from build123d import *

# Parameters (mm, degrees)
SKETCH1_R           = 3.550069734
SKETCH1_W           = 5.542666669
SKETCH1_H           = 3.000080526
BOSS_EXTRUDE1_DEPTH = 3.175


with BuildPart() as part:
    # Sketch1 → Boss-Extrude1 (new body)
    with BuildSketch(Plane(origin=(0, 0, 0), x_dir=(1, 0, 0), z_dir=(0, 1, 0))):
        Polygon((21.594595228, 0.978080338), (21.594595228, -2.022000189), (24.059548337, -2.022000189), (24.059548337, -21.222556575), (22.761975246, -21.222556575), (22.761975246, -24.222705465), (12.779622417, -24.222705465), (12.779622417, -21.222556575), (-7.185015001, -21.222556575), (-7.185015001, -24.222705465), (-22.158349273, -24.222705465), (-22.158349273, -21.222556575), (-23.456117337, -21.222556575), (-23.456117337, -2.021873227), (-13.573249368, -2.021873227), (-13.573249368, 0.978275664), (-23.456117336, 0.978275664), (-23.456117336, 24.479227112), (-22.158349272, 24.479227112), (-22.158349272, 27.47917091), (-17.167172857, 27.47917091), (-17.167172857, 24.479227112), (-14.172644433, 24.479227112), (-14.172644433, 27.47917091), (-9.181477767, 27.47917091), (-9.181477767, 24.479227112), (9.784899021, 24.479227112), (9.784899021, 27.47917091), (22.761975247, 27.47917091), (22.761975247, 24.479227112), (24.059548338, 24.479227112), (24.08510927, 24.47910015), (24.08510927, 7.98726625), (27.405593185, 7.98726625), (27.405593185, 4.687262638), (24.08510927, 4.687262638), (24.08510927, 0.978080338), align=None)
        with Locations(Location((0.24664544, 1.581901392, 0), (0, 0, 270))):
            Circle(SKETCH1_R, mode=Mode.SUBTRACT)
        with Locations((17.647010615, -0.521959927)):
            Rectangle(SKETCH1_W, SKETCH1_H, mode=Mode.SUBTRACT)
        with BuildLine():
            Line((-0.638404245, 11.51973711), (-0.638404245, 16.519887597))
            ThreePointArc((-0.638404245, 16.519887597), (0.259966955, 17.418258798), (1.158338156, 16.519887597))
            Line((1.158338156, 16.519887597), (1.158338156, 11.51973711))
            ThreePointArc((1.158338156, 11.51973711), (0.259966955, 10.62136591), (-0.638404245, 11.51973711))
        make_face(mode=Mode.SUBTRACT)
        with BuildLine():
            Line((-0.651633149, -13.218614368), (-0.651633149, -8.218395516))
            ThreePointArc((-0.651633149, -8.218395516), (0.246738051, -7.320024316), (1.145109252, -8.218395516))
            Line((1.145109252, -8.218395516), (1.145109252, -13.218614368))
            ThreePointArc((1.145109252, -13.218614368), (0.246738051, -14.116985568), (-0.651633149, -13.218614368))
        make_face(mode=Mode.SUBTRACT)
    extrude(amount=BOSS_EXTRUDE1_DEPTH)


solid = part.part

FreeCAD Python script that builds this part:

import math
import FreeCAD as App
import Part
import Sketcher
Q = App.Units.Quantity

doc = App.newDocument("Part")
params = doc.addObject("Spreadsheet::Sheet", "Params")
for row, (alias, value) in enumerate([
    ("pad1_length", "0.125 in"),
], start=1):
    params.set(f"A{row}", alias)
    params.set(f"B{row}", "=" + value)
    params.setAlias(f"B{row}", alias)

body = doc.addObject("PartDesign::Body", "Body")

# Sketch on XZ plane
sketch1 = body.newObject("Sketcher::SketchObject", "Sketch")
sketch1.AttachmentSupport = (doc.getObject("XZ_Plane"), [""])
sketch1.MapMode = "FlatFace"
sketch1.addGeometry(Part.LineSegment(App.Vector(21.594595, 2.022, 0), App.Vector(21.594595, -0.97808, 0)), False)
sketch1.addGeometry(Part.LineSegment(App.Vector(21.594595, -0.97808, 0), App.Vector(24.085109, -0.97808, 0)), False)
sketch1.addGeometry(Part.LineSegment(App.Vector(24.085109, -0.97808, 0), App.Vector(24.085109, -4.687263, 0)), False)
sketch1.addGeometry(Part.LineSegment(App.Vector(24.085109, -4.687263, 0), App.Vector(27.405593, -4.687263, 0)), False)
sketch1.addGeometry(Part.LineSegment(App.Vector(27.405593, -4.687263, 0), App.Vector(27.405593, -7.987266, 0)), False)
sketch1.addGeometry(Part.LineSegment(App.Vector(27.405593, -7.987266, 0), App.Vector(24.085109, -7.987266, 0)), False)
sketch1.addGeometry(Part.LineSegment(App.Vector(24.085109, -7.987266, 0), App.Vector(24.085109, -24.4791, 0)), False)
sketch1.addGeometry(Part.LineSegment(App.Vector(24.085109, -24.4791, 0), App.Vector(24.059548, -24.479227, 0)), False)
sketch1.addGeometry(Part.LineSegment(App.Vector(24.059548, -24.479227, 0), App.Vector(22.761975, -24.479227, 0)), False)
sketch1.addGeometry(Part.LineSegment(App.Vector(22.761975, -24.479227, 0), App.Vector(22.761975, -27.479171, 0)), False)
sketch1.addGeometry(Part.LineSegment(App.Vector(22.761975, -27.479171, 0), App.Vector(9.784899, -27.479171, 0)), False)
sketch1.addGeometry(Part.LineSegment(App.Vector(9.784899, -27.479171, 0), App.Vector(9.784899, -24.479227, 0)), False)
sketch1.addGeometry(Part.LineSegment(App.Vector(9.784899, -24.479227, 0), App.Vector(-9.181478, -24.479227, 0)), False)
sketch1.addGeometry(Part.LineSegment(App.Vector(-9.181478, -24.479227, 0), App.Vector(-9.181478, -27.479171, 0)), False)
sketch1.addGeometry(Part.LineSegment(App.Vector(-9.181478, -27.479171, 0), App.Vector(-14.172644, -27.479171, 0)), False)
sketch1.addGeometry(Part.LineSegment(App.Vector(-14.172644, -27.479171, 0), App.Vector(-14.172644, -24.479227, 0)), False)
sketch1.addGeometry(Part.LineSegment(App.Vector(-14.172644, -24.479227, 0), App.Vector(-17.167173, -24.479227, 0)), False)
sketch1.addGeometry(Part.LineSegment(App.Vector(-17.167173, -24.479227, 0), App.Vector(-17.167173, -27.479171, 0)), False)
sketch1.addGeometry(Part.LineSegment(App.Vector(-17.167173, -27.479171, 0), App.Vector(-22.158349, -27.479171, 0)), False)
sketch1.addGeometry(Part.LineSegment(App.Vector(-22.158349, -27.479171, 0), App.Vector(-22.158349, -24.479227, 0)), False)
sketch1.addGeometry(Part.LineSegment(App.Vector(-22.158349, -24.479227, 0), App.Vector(-23.456117, -24.479227, 0)), False)
sketch1.addGeometry(Part.LineSegment(App.Vector(-23.456117, -24.479227, 0), App.Vector(-23.456117, -0.978276, 0)), False)
sketch1.addGeometry(Part.LineSegment(App.Vector(-23.456117, -0.978276, 0), App.Vector(-13.573249, -0.978276, 0)), False)
sketch1.addGeometry(Part.LineSegment(App.Vector(-13.573249, -0.978276, 0), App.Vector(-13.573249, 2.021873, 0)), False)
sketch1.addGeometry(Part.LineSegment(App.Vector(-13.573249, 2.021873, 0), App.Vector(-23.456117, 2.021873, 0)), False)
sketch1.addGeometry(Part.LineSegment(App.Vector(-23.456117, 2.021873, 0), App.Vector(-23.456117, 21.222557, 0)), False)
sketch1.addGeometry(Part.LineSegment(App.Vector(-23.456117, 21.222557, 0), App.Vector(-22.158349, 21.222557, 0)), False)
sketch1.addGeometry(Part.LineSegment(App.Vector(-22.158349, 21.222557, 0), App.Vector(-22.158349, 24.222705, 0)), False)
sketch1.addGeometry(Part.LineSegment(App.Vector(-22.158349, 24.222705, 0), App.Vector(-7.185015, 24.222705, 0)), False)
sketch1.addGeometry(Part.LineSegment(App.Vector(-7.185015, 24.222705, 0), App.Vector(-7.185015, 21.222557, 0)), False)
sketch1.addGeometry(Part.LineSegment(App.Vector(-7.185015, 21.222557, 0), App.Vector(12.779622, 21.222557, 0)), False)
sketch1.addGeometry(Part.LineSegment(App.Vector(12.779622, 21.222557, 0), App.Vector(12.779622, 24.222705, 0)), False)
sketch1.addGeometry(Part.LineSegment(App.Vector(12.779622, 24.222705, 0), App.Vector(22.761975, 24.222705, 0)), False)
sketch1.addGeometry(Part.LineSegment(App.Vector(22.761975, 24.222705, 0), App.Vector(22.761975, 21.222557, 0)), False)
sketch1.addGeometry(Part.LineSegment(App.Vector(22.761975, 21.222557, 0), App.Vector(24.059548, 21.222557, 0)), False)
sketch1.addGeometry(Part.LineSegment(App.Vector(24.059548, 21.222557, 0), App.Vector(24.059548, 2.022, 0)), False)
sketch1.addGeometry(Part.LineSegment(App.Vector(24.059548, 2.022, 0), App.Vector(21.594595, 2.022, 0)), False)
sketch1.addGeometry(Part.LineSegment(App.Vector(14.875677, 2.022, 0), App.Vector(14.875677, -0.97808, 0)), False)
sketch1.addGeometry(Part.LineSegment(App.Vector(14.875677, -0.97808, 0), App.Vector(20.418344, -0.97808, 0)), False)
sketch1.addGeometry(Part.LineSegment(App.Vector(20.418344, -0.97808, 0), App.Vector(20.418344, 2.022, 0)), False)
sketch1.addGeometry(Part.LineSegment(App.Vector(20.418344, 2.022, 0), App.Vector(14.875677, 2.022, 0)), False)
sketch1.addGeometry(Part.LineSegment(App.Vector(-0.651633, 13.218614, 0), App.Vector(-0.651633, 8.218396, 0)), False)
sketch1.addGeometry(Part.ArcOfCircle(Part.Circle(App.Vector(0.246738, 8.218396, 0), App.Vector(0, 0, 1), 0.898371), math.radians(180), math.radians(360)), False)
sketch1.addGeometry(Part.LineSegment(App.Vector(1.145109, 8.218396, 0), App.Vector(1.145109, 13.218614, 0)), False)
sketch1.addGeometry(Part.ArcOfCircle(Part.Circle(App.Vector(0.246738, 13.218614, 0), App.Vector(0, 0, 1), 0.898371), math.radians(0), math.radians(180)), False)
sketch1.addGeometry(Part.Circle(App.Vector(0.246645, -1.581901, 0), App.Vector(0, 0, 1), 3.55007), False)
sketch1.addGeometry(Part.LineSegment(App.Vector(-0.638404, -11.519737, 0), App.Vector(-0.638404, -16.519888, 0)), False)
sketch1.addGeometry(Part.ArcOfCircle(Part.Circle(App.Vector(0.259967, -16.519888, 0), App.Vector(0, 0, 1), 0.898371), math.radians(180), math.radians(360)), False)
sketch1.addGeometry(Part.LineSegment(App.Vector(1.158338, -16.519888, 0), App.Vector(1.158338, -11.519737, 0)), False)
sketch1.addGeometry(Part.ArcOfCircle(Part.Circle(App.Vector(0.259967, -11.519737, 0), App.Vector(0, 0, 1), 0.898371), math.radians(0), math.radians(180)), False)
sketch1.addConstraint(Sketcher.Constraint("Coincident", 0, 2, 1, 1))
sketch1.addConstraint(Sketcher.Constraint("Coincident", 1, 2, 2, 1))
sketch1.addConstraint(Sketcher.Constraint("Coincident", 2, 2, 3, 1))
sketch1.addConstraint(Sketcher.Constraint("Coincident", 3, 2, 4, 1))
sketch1.addConstraint(Sketcher.Constraint("Coincident", 4, 2, 5, 1))
sketch1.addConstraint(Sketcher.Constraint("Coincident", 5, 2, 6, 1))
sketch1.addConstraint(Sketcher.Constraint("Coincident", 6, 2, 7, 1))
sketch1.addConstraint(Sketcher.Constraint("Coincident", 7, 2, 8, 1))
sketch1.addConstraint(Sketcher.Constraint("Coincident", 8, 2, 9, 1))
sketch1.addConstraint(Sketcher.Constraint("Coincident", 9, 2, 10, 1))
sketch1.addConstraint(Sketcher.Constraint("Coincident", 10, 2, 11, 1))
sketch1.addConstraint(Sketcher.Constraint("Coincident", 11, 2, 12, 1))
sketch1.addConstraint(Sketcher.Constraint("Coincident", 12, 2, 13, 1))
sketch1.addConstraint(Sketcher.Constraint("Coincident", 13, 2, 14, 1))
sketch1.addConstraint(Sketcher.Constraint("Coincident", 14, 2, 15, 1))
sketch1.addConstraint(Sketcher.Constraint("Coincident", 15, 2, 16, 1))
sketch1.addConstraint(Sketcher.Constraint("Coincident", 16, 2, 17, 1))
sketch1.addConstraint(Sketcher.Constraint("Coincident", 17, 2, 18, 1))
sketch1.addConstraint(Sketcher.Constraint("Coincident", 18, 2, 19, 1))
sketch1.addConstraint(Sketcher.Constraint("Coincident", 19, 2, 20, 1))
sketch1.addConstraint(Sketcher.Constraint("Coincident", 20, 2, 21, 1))
sketch1.addConstraint(Sketcher.Constraint("Coincident", 21, 2, 22, 1))
sketch1.addConstraint(Sketcher.Constraint("Coincident", 22, 2, 23, 1))
sketch1.addConstraint(Sketcher.Constraint("Coincident", 23, 2, 24, 1))
sketch1.addConstraint(Sketcher.Constraint("Coincident", 24, 2, 25, 1))
sketch1.addConstraint(Sketcher.Constraint("Coincident", 25, 2, 26, 1))
sketch1.addConstraint(Sketcher.Constraint("Coincident", 26, 2, 27, 1))
sketch1.addConstraint(Sketcher.Constraint("Coincident", 27, 2, 28, 1))
sketch1.addConstraint(Sketcher.Constraint("Coincident", 28, 2, 29, 1))
sketch1.addConstraint(Sketcher.Constraint("Coincident", 29, 2, 30, 1))
sketch1.addConstraint(Sketcher.Constraint("Coincident", 30, 2, 31, 1))
sketch1.addConstraint(Sketcher.Constraint("Coincident", 31, 2, 32, 1))
sketch1.addConstraint(Sketcher.Constraint("Coincident", 32, 2, 33, 1))
sketch1.addConstraint(Sketcher.Constraint("Coincident", 33, 2, 34, 1))
sketch1.addConstraint(Sketcher.Constraint("Coincident", 34, 2, 35, 1))
sketch1.addConstraint(Sketcher.Constraint("Coincident", 35, 2, 36, 1))
sketch1.addConstraint(Sketcher.Constraint("Coincident", 36, 2, 0, 1))
sketch1.addConstraint(Sketcher.Constraint("Coincident", 37, 2, 38, 1))
sketch1.addConstraint(Sketcher.Constraint("Coincident", 38, 2, 39, 1))
sketch1.addConstraint(Sketcher.Constraint("Coincident", 39, 2, 40, 1))
sketch1.addConstraint(Sketcher.Constraint("Coincident", 40, 2, 37, 1))
sketch1.addConstraint(Sketcher.Constraint("Tangent", 41, 2, 42, 1))
sketch1.addConstraint(Sketcher.Constraint("Tangent", 42, 2, 43, 1))
sketch1.addConstraint(Sketcher.Constraint("Tangent", 43, 2, 44, 1))
sketch1.addConstraint(Sketcher.Constraint("Tangent", 44, 2, 41, 1))
sketch1.addConstraint(Sketcher.Constraint("Tangent", 46, 2, 47, 1))
sketch1.addConstraint(Sketcher.Constraint("Tangent", 47, 2, 48, 1))
sketch1.addConstraint(Sketcher.Constraint("Tangent", 48, 2, 49, 1))
sketch1.addConstraint(Sketcher.Constraint("Tangent", 49, 2, 46, 1))
sketch1.addConstraint(Sketcher.Constraint("Vertical", 0))
sketch1.addConstraint(Sketcher.Constraint("Horizontal", 1))
sketch1.addConstraint(Sketcher.Constraint("Vertical", 2))
sketch1.addConstraint(Sketcher.Constraint("Horizontal", 3))
sketch1.addConstraint(Sketcher.Constraint("Vertical", 4))
sketch1.addConstraint(Sketcher.Constraint("Horizontal", 5))
sketch1.addConstraint(Sketcher.Constraint("Vertical", 6))
sketch1.addConstraint(Sketcher.Constraint("Horizontal", 8))
sketch1.addConstraint(Sketcher.Constraint("Vertical", 9))
sketch1.addConstraint(Sketcher.Constraint("Horizontal", 10))
sketch1.addConstraint(Sketcher.Constraint("Vertical", 11))
sketch1.addConstraint(Sketcher.Constraint("Horizontal", 12))
sketch1.addConstraint(Sketcher.Constraint("Vertical", 13))
sketch1.addConstraint(Sketcher.Constraint("Horizontal", 14))
sketch1.addConstraint(Sketcher.Constraint("Vertical", 15))
sketch1.addConstraint(Sketcher.Constraint("Horizontal", 16))
sketch1.addConstraint(Sketcher.Constraint("Vertical", 17))
sketch1.addConstraint(Sketcher.Constraint("Horizontal", 18))
sketch1.addConstraint(Sketcher.Constraint("Vertical", 19))
sketch1.addConstraint(Sketcher.Constraint("Horizontal", 20))
sketch1.addConstraint(Sketcher.Constraint("Vertical", 21))
sketch1.addConstraint(Sketcher.Constraint("Horizontal", 22))
sketch1.addConstraint(Sketcher.Constraint("Vertical", 23))
sketch1.addConstraint(Sketcher.Constraint("Horizontal", 24))
sketch1.addConstraint(Sketcher.Constraint("Vertical", 25))
sketch1.addConstraint(Sketcher.Constraint("Horizontal", 26))
sketch1.addConstraint(Sketcher.Constraint("Vertical", 27))
sketch1.addConstraint(Sketcher.Constraint("Horizontal", 28))
sketch1.addConstraint(Sketcher.Constraint("Vertical", 29))
sketch1.addConstraint(Sketcher.Constraint("Horizontal", 30))
sketch1.addConstraint(Sketcher.Constraint("Vertical", 31))
sketch1.addConstraint(Sketcher.Constraint("Horizontal", 32))
sketch1.addConstraint(Sketcher.Constraint("Vertical", 33))
sketch1.addConstraint(Sketcher.Constraint("Horizontal", 34))
sketch1.addConstraint(Sketcher.Constraint("Vertical", 35))
sketch1.addConstraint(Sketcher.Constraint("Horizontal", 36))
sketch1.addConstraint(Sketcher.Constraint("Vertical", 37))
sketch1.addConstraint(Sketcher.Constraint("Horizontal", 38))
sketch1.addConstraint(Sketcher.Constraint("Vertical", 39))
sketch1.addConstraint(Sketcher.Constraint("Horizontal", 40))
sketch1.addConstraint(Sketcher.Constraint("Vertical", 41))
sketch1.addConstraint(Sketcher.Constraint("Vertical", 43))
sketch1.addConstraint(Sketcher.Constraint("Vertical", 46))
sketch1.addConstraint(Sketcher.Constraint("Vertical", 48))
sketch1.addConstraint(Sketcher.Constraint("Equal", 44, 47))
sketch1.addConstraint(Sketcher.Constraint("Horizontal", 8, 2, 11, 2))
sketch1.addConstraint(Sketcher.Constraint("Horizontal", 10, 2, 13, 2))
sketch1.addConstraint(Sketcher.Constraint("Horizontal", 12, 2, 15, 2))
sketch1.addConstraint(Sketcher.Constraint("Horizontal", 14, 2, 17, 2))
sketch1.addConstraint(Sketcher.Constraint("Horizontal", 16, 2, 19, 2))
sketch1.addConstraint(Sketcher.Constraint("Horizontal", 26, 2, 29, 2))
sketch1.addConstraint(Sketcher.Constraint("Horizontal", 28, 2, 31, 2))
sketch1.addConstraint(Sketcher.Constraint("Horizontal", 30, 2, 33, 2))
sketch1.addConstraint(Sketcher.Constraint("Horizontal", 1, 2, 37, 2))
sketch1.addConstraint(Sketcher.Constraint("Horizontal", 36, 2, 39, 2))
sketch1.addConstraint(Sketcher.Constraint("Vertical", 2, 2, 5, 2))
sketch1.addConstraint(Sketcher.Constraint("Vertical", 21, 2, 24, 2))
sketch1.addConstraint(Sketcher.Constraint("Vertical", 19, 2, 26, 2))
sketch1.addConstraint(Sketcher.Constraint("Vertical", 9, 2, 32, 2))
sketch1.addConstraint(Sketcher.Constraint("Vertical", 7, 2, 34, 2))
sketch1.addConstraint(Sketcher.Constraint("Equal", 23, 27))
sketch1.addConstraint(Sketcher.Constraint("Diameter", 45, Q("7.100139 mm")))
sketch1.addConstraint(Sketcher.Constraint("Radius", 42, Q("0.898371 mm")))
sketch1.addConstraint(Sketcher.Constraint("DistanceX", 16, 2, 16, 1, Q("2.994528 mm")))
sketch1.addConstraint(Sketcher.Constraint("DistanceX", 20, 2, 20, 1, Q("1.297768 mm")))
sketch1.addConstraint(Sketcher.Constraint("DistanceY", 0, 2, 0, 1, Q("3.000081 mm")))
sketch1.addConstraint(Sketcher.Constraint("DistanceY", 21, 1, 21, 2, Q("23.500951 mm")))
sketch1.addConstraint(Sketcher.Constraint("DistanceY", 23, 1, 23, 2, Q("3.000149 mm")))
sketch1.addConstraint(Sketcher.Constraint("DistanceY", 41, 2, 41, 1, Q("5.000219 mm")))
sketch1.addConstraint(Sketcher.Constraint("DistanceY", 46, 2, 46, 1, Q("5.00015 mm")))
sketch1.addConstraint(Sketcher.Constraint("DistanceY", 45, 3, -1, 1, Q("1.581901 mm")))
sketch1.addConstraint(Sketcher.Constraint("DistanceY", 6, 2, -1, 1, Q("24.4791 mm")))
sketch1.addConstraint(Sketcher.Constraint("DistanceX", -1, 1, 10, 2, Q("9.784899 mm")))
sketch1.addConstraint(Sketcher.Constraint("DistanceY", -1, 1, 35, 2, Q("2.022 mm")))
sketch1.addConstraint(Sketcher.Constraint("DistanceY", 47, 3, 44, 3, Q("29.738502 mm")))
sketch1.addConstraint(Sketcher.Constraint("DistanceX", 26, 2, 23, 2, Q("8.5851 mm")))
sketch1.addConstraint(Sketcher.Constraint("Distance", 7, Q("0.025561 mm")))
sketch1.addConstraint(Sketcher.Constraint("DistanceX", 1, 1, 1, 2, Q("2.490514 mm")))
sketch1.addConstraint(Sketcher.Constraint("DistanceX", 3, 1, 3, 2, Q("3.320484 mm")))
sketch1.addConstraint(Sketcher.Constraint("DistanceX", 8, 2, 8, 1, Q("1.297573 mm")))
sketch1.addConstraint(Sketcher.Constraint("DistanceX", 10, 2, 10, 1, Q("12.977076 mm")))
sketch1.addConstraint(Sketcher.Constraint("DistanceX", 12, 2, 12, 1, Q("18.966377 mm")))
sketch1.addConstraint(Sketcher.Constraint("DistanceX", 14, 2, 14, 1, Q("4.991167 mm")))
sketch1.addConstraint(Sketcher.Constraint("DistanceX", 18, 2, 18, 1, Q("4.991176 mm")))
sketch1.addConstraint(Sketcher.Constraint("DistanceX", 28, 1, 28, 2, Q("14.973334 mm")))
sketch1.addConstraint(Sketcher.Constraint("DistanceX", 30, 1, 30, 2, Q("19.964637 mm")))
sketch1.addConstraint(Sketcher.Constraint("DistanceX", 38, 1, 38, 2, Q("5.542667 mm")))
sketch1.addConstraint(Sketcher.Constraint("DistanceY", 2, 2, 2, 1, Q("3.709182 mm")))
sketch1.addConstraint(Sketcher.Constraint("DistanceY", 4, 2, 4, 1, Q("3.300004 mm")))
sketch1.addConstraint(Sketcher.Constraint("DistanceY", 9, 2, 9, 1, Q("2.999944 mm")))
sketch1.addConstraint(Sketcher.Constraint("DistanceY", 25, 1, 25, 2, Q("19.200683 mm")))
sketch1.addConstraint(Sketcher.Constraint("DistanceY", 35, 2, 35, 1, Q("19.200556 mm")))
sketch1.addConstraint(Sketcher.Constraint("DistanceX", -1, 1, 42, 3, Q("0.246738 mm")))
sketch1.addConstraint(Sketcher.Constraint("DistanceX", -1, 1, 47, 2, Q("1.158338 mm")))
sketch1.addConstraint(Sketcher.Constraint("DistanceX", 45, 3, 47, 3, Q("0.013322 mm")))
sketch1.addConstraint(Sketcher.Constraint("DistanceY", 49, 3, 4, 2, Q("3.532471 mm")))
sketch1.addConstraint(Sketcher.Constraint("DistanceX", 37, 2, 1, 2, Q("9.209432 mm")))
pad1 = body.newObject("PartDesign::Pad", "Pad")
pad1.Profile = sketch1
pad1.setExpression("Length", "Params.pad1_length")
pad1.Reversed = True

doc.recompute()
